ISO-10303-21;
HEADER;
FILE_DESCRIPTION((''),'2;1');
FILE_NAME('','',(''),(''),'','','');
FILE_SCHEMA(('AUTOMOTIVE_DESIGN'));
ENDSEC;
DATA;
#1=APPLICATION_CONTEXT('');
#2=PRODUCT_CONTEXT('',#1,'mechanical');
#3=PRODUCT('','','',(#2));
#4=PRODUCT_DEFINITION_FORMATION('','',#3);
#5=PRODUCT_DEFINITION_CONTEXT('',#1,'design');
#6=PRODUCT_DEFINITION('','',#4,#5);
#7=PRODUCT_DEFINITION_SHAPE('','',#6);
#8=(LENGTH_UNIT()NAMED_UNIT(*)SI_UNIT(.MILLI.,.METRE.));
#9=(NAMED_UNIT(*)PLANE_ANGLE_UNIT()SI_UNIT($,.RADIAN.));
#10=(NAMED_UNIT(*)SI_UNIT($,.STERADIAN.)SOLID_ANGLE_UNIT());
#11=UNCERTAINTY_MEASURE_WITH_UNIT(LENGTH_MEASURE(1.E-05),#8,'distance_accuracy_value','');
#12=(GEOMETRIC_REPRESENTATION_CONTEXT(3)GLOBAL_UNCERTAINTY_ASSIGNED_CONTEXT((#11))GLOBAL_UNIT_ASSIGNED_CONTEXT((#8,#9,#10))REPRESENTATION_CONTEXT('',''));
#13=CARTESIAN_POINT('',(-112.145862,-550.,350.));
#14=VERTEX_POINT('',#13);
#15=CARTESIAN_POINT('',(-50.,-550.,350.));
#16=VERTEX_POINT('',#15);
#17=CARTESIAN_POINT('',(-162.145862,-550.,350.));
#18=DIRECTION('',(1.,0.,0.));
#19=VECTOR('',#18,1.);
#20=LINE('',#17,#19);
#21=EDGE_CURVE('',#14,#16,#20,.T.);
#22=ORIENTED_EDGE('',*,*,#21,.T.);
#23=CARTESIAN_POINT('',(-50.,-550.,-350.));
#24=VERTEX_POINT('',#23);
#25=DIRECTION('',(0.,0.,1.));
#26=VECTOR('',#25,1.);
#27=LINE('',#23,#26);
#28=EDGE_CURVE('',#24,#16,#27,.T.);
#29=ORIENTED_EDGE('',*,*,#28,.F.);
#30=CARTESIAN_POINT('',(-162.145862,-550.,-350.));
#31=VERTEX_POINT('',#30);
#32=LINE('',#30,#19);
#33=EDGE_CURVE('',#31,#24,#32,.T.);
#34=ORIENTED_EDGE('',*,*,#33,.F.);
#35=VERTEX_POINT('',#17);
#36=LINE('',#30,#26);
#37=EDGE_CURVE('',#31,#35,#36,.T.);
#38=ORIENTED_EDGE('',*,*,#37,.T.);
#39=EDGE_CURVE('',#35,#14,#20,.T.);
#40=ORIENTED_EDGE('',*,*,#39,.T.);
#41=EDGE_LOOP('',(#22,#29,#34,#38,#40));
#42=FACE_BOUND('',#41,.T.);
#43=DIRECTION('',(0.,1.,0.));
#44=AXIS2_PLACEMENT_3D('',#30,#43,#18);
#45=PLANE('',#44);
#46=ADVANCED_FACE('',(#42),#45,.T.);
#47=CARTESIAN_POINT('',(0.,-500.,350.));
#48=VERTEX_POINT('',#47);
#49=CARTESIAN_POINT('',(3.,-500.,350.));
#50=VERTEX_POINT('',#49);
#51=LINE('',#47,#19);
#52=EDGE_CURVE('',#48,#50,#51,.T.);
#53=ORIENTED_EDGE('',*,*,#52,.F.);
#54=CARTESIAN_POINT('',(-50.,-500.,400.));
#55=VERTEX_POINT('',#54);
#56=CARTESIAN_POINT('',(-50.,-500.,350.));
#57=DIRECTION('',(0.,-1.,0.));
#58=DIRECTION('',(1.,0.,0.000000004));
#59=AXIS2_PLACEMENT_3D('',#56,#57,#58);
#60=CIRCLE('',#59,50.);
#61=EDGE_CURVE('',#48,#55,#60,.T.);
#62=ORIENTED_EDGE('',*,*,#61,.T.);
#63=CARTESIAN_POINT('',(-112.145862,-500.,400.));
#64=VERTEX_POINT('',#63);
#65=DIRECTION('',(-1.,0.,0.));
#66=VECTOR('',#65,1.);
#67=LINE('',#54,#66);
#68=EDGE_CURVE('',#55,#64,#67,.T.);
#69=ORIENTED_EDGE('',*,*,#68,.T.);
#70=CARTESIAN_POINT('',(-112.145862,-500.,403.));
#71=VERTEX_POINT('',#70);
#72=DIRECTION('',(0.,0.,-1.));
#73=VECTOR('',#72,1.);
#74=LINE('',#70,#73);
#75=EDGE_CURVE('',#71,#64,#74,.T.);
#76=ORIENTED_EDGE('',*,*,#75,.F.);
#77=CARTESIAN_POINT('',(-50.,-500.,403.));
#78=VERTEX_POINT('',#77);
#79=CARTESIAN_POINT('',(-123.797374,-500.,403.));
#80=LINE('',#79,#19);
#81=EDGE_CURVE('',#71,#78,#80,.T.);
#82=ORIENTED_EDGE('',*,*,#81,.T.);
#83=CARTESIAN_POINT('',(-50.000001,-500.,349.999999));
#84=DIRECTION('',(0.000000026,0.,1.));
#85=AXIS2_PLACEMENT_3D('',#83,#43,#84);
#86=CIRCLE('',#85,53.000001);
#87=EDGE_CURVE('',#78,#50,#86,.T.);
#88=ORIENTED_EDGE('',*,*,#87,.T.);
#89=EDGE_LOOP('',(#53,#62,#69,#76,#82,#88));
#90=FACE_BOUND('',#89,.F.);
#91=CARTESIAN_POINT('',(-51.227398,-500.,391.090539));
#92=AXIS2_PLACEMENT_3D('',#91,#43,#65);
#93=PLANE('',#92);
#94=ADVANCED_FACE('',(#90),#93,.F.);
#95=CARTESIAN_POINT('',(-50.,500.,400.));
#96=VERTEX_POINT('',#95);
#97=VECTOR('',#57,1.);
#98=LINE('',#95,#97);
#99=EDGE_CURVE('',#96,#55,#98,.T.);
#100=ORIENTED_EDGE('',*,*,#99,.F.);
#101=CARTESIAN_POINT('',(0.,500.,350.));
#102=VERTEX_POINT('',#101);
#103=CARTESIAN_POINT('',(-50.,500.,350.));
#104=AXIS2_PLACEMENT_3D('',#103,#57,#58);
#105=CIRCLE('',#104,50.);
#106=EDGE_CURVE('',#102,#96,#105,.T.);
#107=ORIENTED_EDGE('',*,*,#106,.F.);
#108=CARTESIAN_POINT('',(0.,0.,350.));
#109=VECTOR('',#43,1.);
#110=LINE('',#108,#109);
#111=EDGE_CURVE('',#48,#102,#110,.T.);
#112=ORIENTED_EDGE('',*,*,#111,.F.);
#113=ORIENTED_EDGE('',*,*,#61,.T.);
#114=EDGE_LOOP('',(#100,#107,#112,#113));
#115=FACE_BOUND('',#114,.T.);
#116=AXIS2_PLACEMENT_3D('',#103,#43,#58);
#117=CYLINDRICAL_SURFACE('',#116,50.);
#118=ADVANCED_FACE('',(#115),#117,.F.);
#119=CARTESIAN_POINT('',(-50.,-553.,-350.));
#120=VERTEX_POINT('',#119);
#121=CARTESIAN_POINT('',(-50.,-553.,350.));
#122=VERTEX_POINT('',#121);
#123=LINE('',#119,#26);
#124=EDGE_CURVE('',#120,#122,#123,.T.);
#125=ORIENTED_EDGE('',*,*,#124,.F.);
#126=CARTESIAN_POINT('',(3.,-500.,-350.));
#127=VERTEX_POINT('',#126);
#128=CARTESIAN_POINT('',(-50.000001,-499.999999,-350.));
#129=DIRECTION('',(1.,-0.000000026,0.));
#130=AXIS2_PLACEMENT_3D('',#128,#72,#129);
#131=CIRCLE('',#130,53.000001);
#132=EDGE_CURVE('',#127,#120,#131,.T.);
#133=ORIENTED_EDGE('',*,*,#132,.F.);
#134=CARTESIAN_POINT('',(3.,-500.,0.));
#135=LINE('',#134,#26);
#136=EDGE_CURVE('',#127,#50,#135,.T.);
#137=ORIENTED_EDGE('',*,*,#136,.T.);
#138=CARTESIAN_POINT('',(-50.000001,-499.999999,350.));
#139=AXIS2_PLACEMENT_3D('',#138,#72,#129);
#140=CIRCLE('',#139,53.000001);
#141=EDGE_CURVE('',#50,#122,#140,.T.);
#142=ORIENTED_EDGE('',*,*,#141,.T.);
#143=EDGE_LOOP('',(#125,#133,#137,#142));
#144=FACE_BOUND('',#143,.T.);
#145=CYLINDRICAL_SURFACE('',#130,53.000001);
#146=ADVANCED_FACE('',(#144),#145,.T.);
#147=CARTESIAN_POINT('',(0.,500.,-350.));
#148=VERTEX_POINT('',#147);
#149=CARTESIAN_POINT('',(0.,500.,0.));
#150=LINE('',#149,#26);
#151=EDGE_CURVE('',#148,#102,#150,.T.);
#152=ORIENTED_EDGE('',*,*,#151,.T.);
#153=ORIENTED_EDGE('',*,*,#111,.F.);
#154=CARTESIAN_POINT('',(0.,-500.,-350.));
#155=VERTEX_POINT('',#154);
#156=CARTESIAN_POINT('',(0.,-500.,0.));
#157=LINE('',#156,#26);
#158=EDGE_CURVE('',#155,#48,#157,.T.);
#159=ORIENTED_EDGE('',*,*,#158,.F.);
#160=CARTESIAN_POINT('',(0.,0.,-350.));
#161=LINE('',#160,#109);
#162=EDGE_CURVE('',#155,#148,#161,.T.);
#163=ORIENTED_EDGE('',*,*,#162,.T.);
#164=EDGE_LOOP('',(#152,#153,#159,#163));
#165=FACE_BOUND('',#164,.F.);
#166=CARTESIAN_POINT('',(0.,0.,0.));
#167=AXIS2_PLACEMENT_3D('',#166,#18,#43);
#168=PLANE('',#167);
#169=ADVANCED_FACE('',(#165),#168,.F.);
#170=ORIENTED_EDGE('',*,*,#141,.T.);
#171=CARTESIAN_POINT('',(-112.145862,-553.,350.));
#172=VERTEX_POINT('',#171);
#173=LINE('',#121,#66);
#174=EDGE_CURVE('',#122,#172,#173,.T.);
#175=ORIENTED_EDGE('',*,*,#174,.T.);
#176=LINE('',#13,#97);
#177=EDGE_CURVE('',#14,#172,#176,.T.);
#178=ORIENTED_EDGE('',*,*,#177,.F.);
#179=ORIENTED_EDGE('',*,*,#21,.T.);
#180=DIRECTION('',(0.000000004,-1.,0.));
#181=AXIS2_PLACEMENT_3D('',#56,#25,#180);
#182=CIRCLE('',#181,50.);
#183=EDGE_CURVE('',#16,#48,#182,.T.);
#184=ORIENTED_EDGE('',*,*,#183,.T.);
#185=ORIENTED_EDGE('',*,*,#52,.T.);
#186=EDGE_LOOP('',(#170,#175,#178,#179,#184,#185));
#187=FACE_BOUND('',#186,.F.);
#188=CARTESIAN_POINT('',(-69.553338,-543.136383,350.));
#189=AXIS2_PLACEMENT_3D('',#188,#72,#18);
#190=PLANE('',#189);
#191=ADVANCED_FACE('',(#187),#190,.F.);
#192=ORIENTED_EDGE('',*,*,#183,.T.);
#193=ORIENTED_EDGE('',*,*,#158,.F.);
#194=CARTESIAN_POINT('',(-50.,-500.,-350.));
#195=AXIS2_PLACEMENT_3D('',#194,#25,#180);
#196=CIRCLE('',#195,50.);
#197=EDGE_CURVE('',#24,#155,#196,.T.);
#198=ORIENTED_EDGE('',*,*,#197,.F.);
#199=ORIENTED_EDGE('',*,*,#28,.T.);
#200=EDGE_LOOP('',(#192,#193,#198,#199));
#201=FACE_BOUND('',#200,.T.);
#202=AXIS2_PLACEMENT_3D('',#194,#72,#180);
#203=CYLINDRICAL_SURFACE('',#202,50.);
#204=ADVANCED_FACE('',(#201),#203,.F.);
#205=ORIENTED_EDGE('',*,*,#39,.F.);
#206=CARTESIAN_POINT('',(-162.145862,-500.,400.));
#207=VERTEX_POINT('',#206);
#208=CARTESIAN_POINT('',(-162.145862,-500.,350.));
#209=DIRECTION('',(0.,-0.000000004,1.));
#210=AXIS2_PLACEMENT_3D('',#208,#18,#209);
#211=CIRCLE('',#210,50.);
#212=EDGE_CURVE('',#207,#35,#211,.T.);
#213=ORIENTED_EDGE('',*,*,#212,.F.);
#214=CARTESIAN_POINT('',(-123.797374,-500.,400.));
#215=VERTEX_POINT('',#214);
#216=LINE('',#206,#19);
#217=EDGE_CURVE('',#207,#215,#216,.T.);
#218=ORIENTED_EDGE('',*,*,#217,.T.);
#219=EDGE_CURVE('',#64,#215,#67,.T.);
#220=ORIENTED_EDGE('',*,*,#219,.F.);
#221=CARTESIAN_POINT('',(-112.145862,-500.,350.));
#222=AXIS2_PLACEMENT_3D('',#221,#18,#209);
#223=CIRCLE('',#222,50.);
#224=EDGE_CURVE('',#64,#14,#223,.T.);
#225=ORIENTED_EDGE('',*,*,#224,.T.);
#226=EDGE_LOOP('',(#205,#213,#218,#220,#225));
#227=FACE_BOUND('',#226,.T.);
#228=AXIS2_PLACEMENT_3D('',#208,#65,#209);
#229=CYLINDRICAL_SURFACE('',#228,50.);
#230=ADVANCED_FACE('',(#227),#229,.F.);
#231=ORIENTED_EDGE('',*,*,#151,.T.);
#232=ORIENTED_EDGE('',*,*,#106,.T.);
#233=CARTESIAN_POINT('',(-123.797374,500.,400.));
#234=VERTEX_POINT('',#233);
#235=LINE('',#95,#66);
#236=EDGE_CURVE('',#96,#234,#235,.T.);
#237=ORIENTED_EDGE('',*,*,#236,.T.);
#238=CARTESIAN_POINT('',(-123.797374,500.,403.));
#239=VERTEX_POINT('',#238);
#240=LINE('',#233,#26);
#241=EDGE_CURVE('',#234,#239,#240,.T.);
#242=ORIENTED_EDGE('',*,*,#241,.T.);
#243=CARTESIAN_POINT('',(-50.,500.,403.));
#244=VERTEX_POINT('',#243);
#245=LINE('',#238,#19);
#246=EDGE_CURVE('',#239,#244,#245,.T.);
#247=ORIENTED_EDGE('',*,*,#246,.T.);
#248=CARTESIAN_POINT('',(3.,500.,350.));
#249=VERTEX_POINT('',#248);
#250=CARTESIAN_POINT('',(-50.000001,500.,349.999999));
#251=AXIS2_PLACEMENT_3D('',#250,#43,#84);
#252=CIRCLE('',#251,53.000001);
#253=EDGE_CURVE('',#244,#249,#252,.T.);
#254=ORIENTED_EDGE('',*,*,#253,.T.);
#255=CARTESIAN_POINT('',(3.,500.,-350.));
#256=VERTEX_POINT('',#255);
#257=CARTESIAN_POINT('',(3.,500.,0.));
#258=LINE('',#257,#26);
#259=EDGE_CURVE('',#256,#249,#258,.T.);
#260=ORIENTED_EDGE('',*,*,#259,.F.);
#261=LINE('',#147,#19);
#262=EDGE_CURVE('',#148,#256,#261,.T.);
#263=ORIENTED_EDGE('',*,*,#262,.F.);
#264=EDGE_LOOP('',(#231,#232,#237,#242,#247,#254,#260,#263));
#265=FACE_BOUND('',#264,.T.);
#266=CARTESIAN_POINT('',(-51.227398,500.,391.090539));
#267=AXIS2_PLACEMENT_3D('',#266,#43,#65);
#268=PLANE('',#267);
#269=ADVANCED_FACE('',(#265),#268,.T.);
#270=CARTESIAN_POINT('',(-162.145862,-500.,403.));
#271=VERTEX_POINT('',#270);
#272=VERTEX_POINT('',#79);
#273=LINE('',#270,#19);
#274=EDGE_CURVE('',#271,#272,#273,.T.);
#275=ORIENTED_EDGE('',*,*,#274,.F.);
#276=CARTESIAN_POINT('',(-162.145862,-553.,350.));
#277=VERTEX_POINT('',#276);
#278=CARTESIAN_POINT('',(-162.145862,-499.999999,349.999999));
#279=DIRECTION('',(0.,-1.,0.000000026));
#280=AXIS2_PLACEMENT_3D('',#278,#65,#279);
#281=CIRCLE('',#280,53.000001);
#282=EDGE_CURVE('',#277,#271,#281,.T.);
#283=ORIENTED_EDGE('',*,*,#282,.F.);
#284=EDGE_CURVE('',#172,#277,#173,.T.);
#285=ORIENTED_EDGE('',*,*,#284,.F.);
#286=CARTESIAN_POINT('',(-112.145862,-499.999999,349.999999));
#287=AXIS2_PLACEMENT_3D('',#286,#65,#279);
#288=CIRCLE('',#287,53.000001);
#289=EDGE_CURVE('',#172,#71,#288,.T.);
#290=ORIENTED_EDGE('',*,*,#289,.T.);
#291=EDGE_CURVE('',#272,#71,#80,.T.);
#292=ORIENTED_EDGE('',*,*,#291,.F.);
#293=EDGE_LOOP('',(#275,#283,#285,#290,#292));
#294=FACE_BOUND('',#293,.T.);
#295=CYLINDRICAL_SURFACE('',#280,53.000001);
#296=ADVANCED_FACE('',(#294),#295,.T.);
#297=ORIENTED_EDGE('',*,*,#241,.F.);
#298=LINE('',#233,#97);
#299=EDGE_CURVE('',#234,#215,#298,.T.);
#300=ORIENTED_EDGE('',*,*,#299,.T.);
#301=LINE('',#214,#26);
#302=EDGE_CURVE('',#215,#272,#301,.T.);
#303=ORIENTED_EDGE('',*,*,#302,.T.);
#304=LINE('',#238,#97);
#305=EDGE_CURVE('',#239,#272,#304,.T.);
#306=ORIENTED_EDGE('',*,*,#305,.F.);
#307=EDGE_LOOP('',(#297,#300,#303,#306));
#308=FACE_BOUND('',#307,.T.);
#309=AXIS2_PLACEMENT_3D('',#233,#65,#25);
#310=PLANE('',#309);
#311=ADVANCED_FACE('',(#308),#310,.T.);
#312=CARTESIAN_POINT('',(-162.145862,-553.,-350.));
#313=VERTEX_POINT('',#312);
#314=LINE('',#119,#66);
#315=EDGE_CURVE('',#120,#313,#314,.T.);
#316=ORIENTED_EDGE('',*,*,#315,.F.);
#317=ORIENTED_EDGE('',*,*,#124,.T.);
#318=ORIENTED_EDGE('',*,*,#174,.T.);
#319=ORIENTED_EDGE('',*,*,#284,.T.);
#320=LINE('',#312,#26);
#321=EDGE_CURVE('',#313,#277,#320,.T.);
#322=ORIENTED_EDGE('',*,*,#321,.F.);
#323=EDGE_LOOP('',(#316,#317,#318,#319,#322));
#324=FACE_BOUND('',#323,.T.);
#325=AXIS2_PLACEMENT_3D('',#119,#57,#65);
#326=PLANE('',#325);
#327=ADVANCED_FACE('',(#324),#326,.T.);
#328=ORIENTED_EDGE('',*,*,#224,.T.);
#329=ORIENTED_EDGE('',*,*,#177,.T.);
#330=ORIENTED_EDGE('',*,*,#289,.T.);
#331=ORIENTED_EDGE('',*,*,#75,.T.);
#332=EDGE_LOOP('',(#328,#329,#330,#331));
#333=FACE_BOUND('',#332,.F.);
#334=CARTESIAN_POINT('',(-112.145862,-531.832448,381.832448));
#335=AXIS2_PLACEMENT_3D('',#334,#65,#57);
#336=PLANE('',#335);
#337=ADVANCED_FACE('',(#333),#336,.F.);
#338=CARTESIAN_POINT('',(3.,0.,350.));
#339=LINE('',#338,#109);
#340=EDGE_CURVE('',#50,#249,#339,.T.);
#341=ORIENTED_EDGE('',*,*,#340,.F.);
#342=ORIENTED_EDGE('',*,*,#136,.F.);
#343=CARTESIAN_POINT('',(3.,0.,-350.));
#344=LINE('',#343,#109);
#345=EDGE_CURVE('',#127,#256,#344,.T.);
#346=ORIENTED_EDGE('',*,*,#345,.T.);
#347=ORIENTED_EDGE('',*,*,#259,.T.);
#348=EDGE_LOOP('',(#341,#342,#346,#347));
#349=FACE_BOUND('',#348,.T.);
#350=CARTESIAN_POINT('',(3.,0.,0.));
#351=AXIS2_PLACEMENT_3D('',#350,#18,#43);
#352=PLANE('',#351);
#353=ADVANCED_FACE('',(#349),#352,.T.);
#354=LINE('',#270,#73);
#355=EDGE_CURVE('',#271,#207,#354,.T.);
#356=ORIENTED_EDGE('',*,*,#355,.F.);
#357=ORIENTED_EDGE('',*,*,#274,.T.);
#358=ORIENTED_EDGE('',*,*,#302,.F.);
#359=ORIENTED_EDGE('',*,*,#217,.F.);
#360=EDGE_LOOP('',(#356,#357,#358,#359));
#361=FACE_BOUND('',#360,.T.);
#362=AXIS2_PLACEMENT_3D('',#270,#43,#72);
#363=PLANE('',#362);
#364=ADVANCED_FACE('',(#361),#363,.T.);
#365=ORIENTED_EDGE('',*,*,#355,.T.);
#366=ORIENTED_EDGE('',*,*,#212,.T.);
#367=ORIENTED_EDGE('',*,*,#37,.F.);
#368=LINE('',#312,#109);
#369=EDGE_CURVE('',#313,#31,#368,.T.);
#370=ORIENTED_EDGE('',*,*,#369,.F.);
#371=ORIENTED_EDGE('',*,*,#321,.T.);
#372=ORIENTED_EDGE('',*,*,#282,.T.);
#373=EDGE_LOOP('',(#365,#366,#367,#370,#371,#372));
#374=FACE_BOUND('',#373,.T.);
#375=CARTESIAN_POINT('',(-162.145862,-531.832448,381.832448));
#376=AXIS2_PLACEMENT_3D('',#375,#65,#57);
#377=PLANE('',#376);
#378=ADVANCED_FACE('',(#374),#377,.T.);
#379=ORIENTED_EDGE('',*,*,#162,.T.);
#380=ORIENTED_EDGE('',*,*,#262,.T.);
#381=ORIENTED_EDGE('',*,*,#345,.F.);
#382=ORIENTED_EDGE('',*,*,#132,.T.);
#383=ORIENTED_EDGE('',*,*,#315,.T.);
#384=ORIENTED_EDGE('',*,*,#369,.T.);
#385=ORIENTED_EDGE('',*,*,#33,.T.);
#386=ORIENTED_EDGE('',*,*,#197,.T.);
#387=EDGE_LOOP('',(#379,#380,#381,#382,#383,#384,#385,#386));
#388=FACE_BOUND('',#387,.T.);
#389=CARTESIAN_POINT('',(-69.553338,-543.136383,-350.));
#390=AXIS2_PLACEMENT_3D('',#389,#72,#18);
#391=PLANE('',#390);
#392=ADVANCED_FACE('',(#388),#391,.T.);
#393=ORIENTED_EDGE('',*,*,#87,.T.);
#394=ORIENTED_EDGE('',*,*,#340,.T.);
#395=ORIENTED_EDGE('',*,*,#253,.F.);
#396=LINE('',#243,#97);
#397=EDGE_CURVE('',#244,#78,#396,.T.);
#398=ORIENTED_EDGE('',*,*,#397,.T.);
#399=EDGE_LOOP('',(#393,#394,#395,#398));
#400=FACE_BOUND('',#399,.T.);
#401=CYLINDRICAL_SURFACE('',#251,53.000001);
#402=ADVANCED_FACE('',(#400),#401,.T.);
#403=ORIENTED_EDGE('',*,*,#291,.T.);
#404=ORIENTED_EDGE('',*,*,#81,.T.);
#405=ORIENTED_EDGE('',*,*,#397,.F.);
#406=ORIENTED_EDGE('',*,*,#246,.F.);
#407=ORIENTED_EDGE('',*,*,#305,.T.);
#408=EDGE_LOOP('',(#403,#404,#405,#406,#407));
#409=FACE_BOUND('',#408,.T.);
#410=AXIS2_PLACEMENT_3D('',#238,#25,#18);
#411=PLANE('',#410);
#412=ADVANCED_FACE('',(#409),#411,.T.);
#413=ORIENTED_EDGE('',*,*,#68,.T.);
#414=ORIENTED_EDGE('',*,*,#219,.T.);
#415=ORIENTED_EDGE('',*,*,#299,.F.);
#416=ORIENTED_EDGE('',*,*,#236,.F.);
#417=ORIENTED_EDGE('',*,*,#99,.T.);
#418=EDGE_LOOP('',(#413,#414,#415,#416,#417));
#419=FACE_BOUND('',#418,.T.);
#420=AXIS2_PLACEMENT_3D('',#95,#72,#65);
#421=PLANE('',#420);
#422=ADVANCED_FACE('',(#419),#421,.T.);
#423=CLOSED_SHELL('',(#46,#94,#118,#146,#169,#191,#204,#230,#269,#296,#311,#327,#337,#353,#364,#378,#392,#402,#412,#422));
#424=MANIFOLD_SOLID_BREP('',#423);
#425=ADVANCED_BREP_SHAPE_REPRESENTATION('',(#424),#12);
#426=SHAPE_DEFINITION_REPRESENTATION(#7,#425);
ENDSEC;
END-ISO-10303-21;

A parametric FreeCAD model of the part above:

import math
import FreeCAD as App
import Part
import Sketcher

doc = App.newDocument("Part")
body = doc.addObject("PartDesign::Body", "Body")

sketch1 = body.newObject("Sketcher::SketchObject", "Sketch")
sketch1.AttachmentSupport = (doc.getObject("YZ_Plane"), [""])
sketch1.MapMode = "FlatFace"
sketch1.addGeometry([
    Part.LineSegment(App.Vector(-500, 350, 0), App.Vector(-500, -350, 0)),
    Part.LineSegment(App.Vector(-500, -350, 0), App.Vector(500, -350, 0)),
    Part.LineSegment(App.Vector(500, -350, 0), App.Vector(500, 350, 0)),
    Part.LineSegment(App.Vector(500, 350, 0), App.Vector(-500, 350, 0)),
], False)
sketch1.addConstraint([
    Sketcher.Constraint("Coincident", 0, 2, 1, 1),
    Sketcher.Constraint("Coincident", 1, 2, 2, 1),
    Sketcher.Constraint("Coincident", 2, 2, 3, 1),
    Sketcher.Constraint("Coincident", 3, 2, 0, 1),
    Sketcher.Constraint("Vertical", 0),
    Sketcher.Constraint("Horizontal", 1),
    Sketcher.Constraint("Vertical", 2),
    Sketcher.Constraint("Horizontal", 3),
    Sketcher.Constraint("Symmetric", 0, 2, 2, 2, -1, 1),
    Sketcher.Constraint("DistanceX", 1, 1, 1, 2, 1000.0),
    Sketcher.Constraint("DistanceY", 0, 2, 0, 1, 700.0),
])
pad1 = body.newObject("PartDesign::Pad", "Pad")
pad1.Profile = sketch1
pad1.Length = 3

sketch2 = body.newObject("Sketcher::SketchObject", "Sketch001")
sketch2.AttachmentSupport = (doc.getObject("XZ_Plane"), [""])
sketch2.MapMode = "FlatFace"
sketch2.AttachmentOffset = App.Placement(App.Vector(0, 0, -500), App.Rotation())
sketch2.addGeometry([
    Part.LineSegment(App.Vector(-123.8, 403, 0), App.Vector(-50, 403, 0)),
    Part.ArcOfCircle(Part.Circle(App.Vector(-50, 350, 0), App.Vector(0, 0, 1), 53), math.radians(0), math.radians(90)),
    Part.LineSegment(App.Vector(3, 350, 0), App.Vector(0, 350, 0)),
    Part.ArcOfCircle(Part.Circle(App.Vector(-50, 350, 0), App.Vector(0, 0, 1), 50), math.radians(0), math.radians(90)),
    Part.LineSegment(App.Vector(-50, 400, 0), App.Vector(-123.8, 400, 0)),
    Part.LineSegment(App.Vector(-123.8, 400, 0), App.Vector(-123.8, 403, 0)),
], False)
sketch2.addConstraint([
    Sketcher.Constraint("Tangent", 0, 2, 1, 2),
    Sketcher.Constraint("Coincident", 1, 1, 2, 1),
    Sketcher.Constraint("Coincident", 2, 2, 3, 1),
    Sketcher.Constraint("Tangent", 3, 2, 4, 1),
    Sketcher.Constraint("Coincident", 4, 2, 5, 1),
    Sketcher.Constraint("Coincident", 5, 2, 0, 1),
    Sketcher.Constraint("Horizontal", 0),
    Sketcher.Constraint("Horizontal", 2),
    Sketcher.Constraint("Horizontal", 4),
    Sketcher.Constraint("Vertical", 5),
    Sketcher.Constraint("Coincident", 3, 3, 1, 3),
    Sketcher.Constraint("PointOnObject", 2, 2, -2),
    Sketcher.Constraint("Horizontal", 3, 3, 1, 1),
    Sketcher.Constraint("Radius", 1, 53.000001),
    Sketcher.Constraint("Radius", 3, 50.0),
    Sketcher.Constraint("DistanceY", -1, 1, 1, 3, 349.999999),
    Sketcher.Constraint("DistanceX", 0, 1, 0, 2, 73.797374),
])
pad2 = body.newObject("PartDesign::Pad", "Pad001")
pad2.Profile = sketch2
pad2.Length = 1000

sketch3 = body.newObject("Sketcher::SketchObject", "Sketch002")
sketch3.AttachmentSupport = (doc.getObject("XY_Plane"), [""])
sketch3.MapMode = "FlatFace"
sketch3.AttachmentOffset = App.Placement(App.Vector(0, 0, -350), App.Rotation())
sketch3.addGeometry([
    Part.LineSegment(App.Vector(-162.1, -550, 0), App.Vector(-50, -550, 0)),
    Part.ArcOfCircle(Part.Circle(App.Vector(-50, -500, 0), App.Vector(0, 0, 1), 50), math.radians(-90), math.radians(0)),
    Part.LineSegment(App.Vector(0, -500, 0), App.Vector(3, -500, 0)),
    Part.ArcOfCircle(Part.Circle(App.Vector(-50, -500, 0), App.Vector(0, 0, 1), 53), math.radians(-90), math.radians(0)),
    Part.LineSegment(App.Vector(-50, -553, 0), App.Vector(-162.1, -553, 0)),
    Part.LineSegment(App.Vector(-162.1, -553, 0), App.Vector(-162.1, -550, 0)),
], False)
sketch3.addConstraint([
    Sketcher.Constraint("Tangent", 0, 2, 1, 1),
    Sketcher.Constraint("Coincident", 1, 2, 2, 1),
    Sketcher.Constraint("Coincident", 2, 2, 3, 2),
    Sketcher.Constraint("Tangent", 3, 1, 4, 1),
    Sketcher.Constraint("Coincident", 4, 2, 5, 1),
    Sketcher.Constraint("Coincident", 5, 2, 0, 1),
    Sketcher.Constraint("Horizontal", 0),
    Sketcher.Constraint("Horizontal", 2),
    Sketcher.Constraint("Horizontal", 4),
    Sketcher.Constraint("Vertical", 5),
    Sketcher.Constraint("Coincident", 3, 3, 1, 3),
    Sketcher.Constraint("PointOnObject", 1, 2, -2),
    Sketcher.Constraint("Horizontal", 3, 3, 1, 2),
    Sketcher.Constraint("Radius", 1, 50.0),
    Sketcher.Constraint("Radius", 3, 53.000001),
    Sketcher.Constraint("DistanceY", 1, 3, -1, 1, 500.0),
    Sketcher.Constraint("DistanceX", 0, 1, 0, 2, 112.145862),
])
pad3 = body.newObject("PartDesign::Pad", "Pad002")
pad3.Profile = sketch3
pad3.Length = 700

sketch4 = body.newObject("Sketcher::SketchObject", "Sketch003")
sketch4.AttachmentSupport = (doc.getObject("YZ_Plane"), [""])
sketch4.MapMode = "FlatFace"
sketch4.AttachmentOffset = App.Placement(App.Vector(0, 0, -162.145862), App.Rotation())
sketch4.addGeometry([
    Part.LineSegment(App.Vector(-500, 403, 0), App.Vector(-500, 400, 0)),
    Part.ArcOfCircle(Part.Circle(App.Vector(-500, 350, 0), App.Vector(0, 0, 1), 50), math.radians(90), math.radians(180)),
    Part.LineSegment(App.Vector(-550, 350, 0), App.Vector(-553, 350, 0)),
    Part.ArcOfCircle(Part.Circle(App.Vector(-500, 350, 0), App.Vector(0, 0, 1), 53), math.radians(90), math.radians(180)),
], False)
sketch4.addConstraint([
    Sketcher.Constraint("Coincident", 0, 2, 1, 1),
    Sketcher.Constraint("Coincident", 1, 2, 2, 1),
    Sketcher.Constraint("Coincident", 2, 2, 3, 2),
    Sketcher.Constraint("Coincident", 3, 1, 0, 1),
    Sketcher.Constraint("Vertical", 0),
    Sketcher.Constraint("Horizontal", 2),
    Sketcher.Constraint("Coincident", 3, 3, 1, 3),
    Sketcher.Constraint("Horizontal", 3, 3, 1, 2),
    Sketcher.Constraint("Vertical", 3, 3, 0, 2),
    Sketcher.Constraint("Radius", 1, 50.0),
    Sketcher.Constraint("Radius", 3, 53.000001),
    Sketcher.Constraint("DistanceX", 1, 3, -1, 1, 500.0),
    Sketcher.Constraint("DistanceY", -1, 1, 1, 3, 350.0),
])
pad4 = body.newObject("PartDesign::Pad", "Pad003")
pad4.Profile = sketch4
pad4.Length = 50

doc.recompute()
